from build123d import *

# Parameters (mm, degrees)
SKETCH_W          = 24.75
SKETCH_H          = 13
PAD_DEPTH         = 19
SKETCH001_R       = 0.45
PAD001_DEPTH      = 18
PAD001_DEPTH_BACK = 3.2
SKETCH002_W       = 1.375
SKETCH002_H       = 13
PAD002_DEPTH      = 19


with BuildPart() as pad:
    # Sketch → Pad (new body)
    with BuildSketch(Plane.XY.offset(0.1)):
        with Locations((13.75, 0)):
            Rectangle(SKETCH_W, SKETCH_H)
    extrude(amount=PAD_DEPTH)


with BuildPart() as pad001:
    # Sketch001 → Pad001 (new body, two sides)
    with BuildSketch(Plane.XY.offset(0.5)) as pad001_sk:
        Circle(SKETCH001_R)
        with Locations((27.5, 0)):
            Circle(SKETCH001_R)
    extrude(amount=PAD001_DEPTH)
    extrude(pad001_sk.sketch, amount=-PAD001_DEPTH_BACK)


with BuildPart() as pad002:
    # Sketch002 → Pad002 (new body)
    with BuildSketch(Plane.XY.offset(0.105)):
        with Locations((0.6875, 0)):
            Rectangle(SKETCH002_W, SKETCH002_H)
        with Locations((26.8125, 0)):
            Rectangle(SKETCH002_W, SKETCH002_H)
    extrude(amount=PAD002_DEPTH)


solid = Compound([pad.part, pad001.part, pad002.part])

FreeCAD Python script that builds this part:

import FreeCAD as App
import Part
import Sketcher
from FreeCAD import Vector
Q = App.Units.Quantity


def add_polygon(sketch, points):
    """Adds a closed chain of lines whose ends are joined by coincident constraints."""
    first, n = sketch.GeometryCount, len(points)
    for a, b in zip(points, points[1:] + points[:1]):
        sketch.addGeometry(Part.LineSegment(App.Vector(*a, 0), App.Vector(*b, 0)), False)
    for i in range(n):
        sketch.addConstraint(Sketcher.Constraint("Coincident", first + i, 2, first + (i + 1) % n, 1))

doc = App.newDocument("Part")
params = doc.addObject("Spreadsheet::Sheet", "Params")
for row, (alias, value) in enumerate([
    ("sketch1_height", "13 mm"),
    ("sketch1_width", "24.75 mm"),
    ("pad1_length", "19 mm"),
    ("sketch2_diameter", "0.9 mm"),
    ("pad2_length", "18 mm"),
    ("pad2_length2", "3.2 mm"),
    ("sketch3_height", "13 mm"),
    ("pad3_length", "19 mm"),
], start=1):
    params.set(f"A{row}", alias)
    params.set(f"B{row}", "=" + value)
    params.setAlias(f"B{row}", alias)

body = doc.addObject("PartDesign::Body", "Body")

# Sketch on XY plane
sketch1 = body.newObject("Sketcher::SketchObject", "Sketch")
sketch1.AttachmentSupport = (doc.getObject("XY_Plane"), [""])
sketch1.MapMode = "FlatFace"
sketch1.AttachmentOffset = App.Placement(Vector(0, 0, 0.1), App.Rotation())
add_polygon(sketch1, [(1.375, 6.5), (1.375, -6.5), (26.125, -6.5), (26.125, 6.5)])  # lines 0-3
sketch1.addConstraint([
    Sketcher.Constraint("Vertical", 0),
    Sketcher.Constraint("Horizontal", 1),
    Sketcher.Constraint("Vertical", 2),
    Sketcher.Constraint("Horizontal", 3),
    Sketcher.Constraint("DistanceY", 0, 2, 0, 1, Q("13 mm")),
    Sketcher.Constraint("DistanceX", 1, 1, 1, 2, Q("24.75 mm")),
    Sketcher.Constraint("DistanceY", 0, 2, -1, 1, Q("6.5 mm")),
    Sketcher.Constraint("DistanceX", -1, 1, 0, 2, Q("1.375 mm")),
])
sketch1.setExpression("Constraints[8]", "Params.sketch1_height")
sketch1.setExpression("Constraints[9]", "Params.sketch1_width")
pad1 = body.newObject("PartDesign::Pad", "Pad")
pad1.Profile = sketch1
pad1.setExpression("Length", "Params.pad1_length")
body2 = doc.addObject("PartDesign::Body", "Body001")
body2.AllowCompound = True

# Sketch on XY plane
sketch2 = body2.newObject("Sketcher::SketchObject", "Sketch001")
sketch2.AttachmentSupport = (doc.getObject("XY_Plane001"), [""])
sketch2.MapMode = "FlatFace"
sketch2.AttachmentOffset = App.Placement(Vector(0, 0, 0.5), App.Rotation())
sketch2.addGeometry([
    Part.Circle(Vector(0, 0, 0), Vector(0, 0, 1), 0.45),
    Part.Circle(Vector(27.5, 0, 0), Vector(0, 0, 1), 0.45),
], False)
sketch2.addConstraint([
    Sketcher.Constraint("Coincident", 0, 3, -1, 1),
    Sketcher.Constraint("Equal", 0, 1),
    Sketcher.Constraint("PointOnObject", 1, 3, -1),
    Sketcher.Constraint("Diameter", 0, Q("0.9 mm")),
    Sketcher.Constraint("DistanceX", -1, 1, 1, 3, Q("27.5 mm")),
])
sketch2.setExpression("Constraints[3]", "Params.sketch2_diameter")
pad2 = body2.newObject("PartDesign::Pad", "Pad001")
pad2.Profile = sketch2
pad2.Type = "TwoLengths"
pad2.setExpression("Length", "Params.pad2_length")
pad2.setExpression("Length2", "Params.pad2_length2")
body3 = doc.addObject("PartDesign::Body", "Body002")
body3.AllowCompound = True

# Sketch on XY plane
sketch3 = body3.newObject("Sketcher::SketchObject", "Sketch002")
sketch3.AttachmentSupport = (doc.getObject("XY_Plane002"), [""])
sketch3.MapMode = "FlatFace"
sketch3.AttachmentOffset = App.Placement(Vector(0, 0, 0.105), App.Rotation())
add_polygon(sketch3, [(0, 6.5), (0, -6.5), (1.375, -6.5), (1.375, 6.5)])  # lines 0-3
add_polygon(sketch3, [(26.125, 6.5), (26.125, -6.5), (27.5, -6.5), (27.5, 6.5)])  # lines 4-7
sketch3.addConstraint([
    Sketcher.Constraint("Vertical", 0),
    Sketcher.Constraint("Horizontal", 1),
    Sketcher.Constraint("Vertical", 2),
    Sketcher.Constraint("Horizontal", 3),
    Sketcher.Constraint("Vertical", 4),
    Sketcher.Constraint("Horizontal", 5),
    Sketcher.Constraint("Vertical", 6),
    Sketcher.Constraint("Horizontal", 7),
    Sketcher.Constraint("Symmetric", 0, 2, 3, 2, -1, 1),
    Sketcher.Constraint("Horizontal", 1, 2, 4, 2),
    Sketcher.Constraint("Horizontal", 3, 2, 6, 2),
    Sketcher.Constraint("Equal", 3, 5),
    Sketcher.Constraint("DistanceY", 0, 2, 0, 1, Q("13 mm")),
    Sketcher.Constraint("DistanceX", -1, 1, 5, 2, Q("27.5 mm")),
    Sketcher.Constraint("DistanceX", 1, 1, 1, 2, Q("1.375 mm")),
])
sketch3.setExpression("Constraints[20]", "Params.sketch3_height")
pad3 = body3.newObject("PartDesign::Pad", "Pad002")
pad3.Profile = sketch3
pad3.setExpression("Length", "Params.pad3_length")

doc.recompute()
